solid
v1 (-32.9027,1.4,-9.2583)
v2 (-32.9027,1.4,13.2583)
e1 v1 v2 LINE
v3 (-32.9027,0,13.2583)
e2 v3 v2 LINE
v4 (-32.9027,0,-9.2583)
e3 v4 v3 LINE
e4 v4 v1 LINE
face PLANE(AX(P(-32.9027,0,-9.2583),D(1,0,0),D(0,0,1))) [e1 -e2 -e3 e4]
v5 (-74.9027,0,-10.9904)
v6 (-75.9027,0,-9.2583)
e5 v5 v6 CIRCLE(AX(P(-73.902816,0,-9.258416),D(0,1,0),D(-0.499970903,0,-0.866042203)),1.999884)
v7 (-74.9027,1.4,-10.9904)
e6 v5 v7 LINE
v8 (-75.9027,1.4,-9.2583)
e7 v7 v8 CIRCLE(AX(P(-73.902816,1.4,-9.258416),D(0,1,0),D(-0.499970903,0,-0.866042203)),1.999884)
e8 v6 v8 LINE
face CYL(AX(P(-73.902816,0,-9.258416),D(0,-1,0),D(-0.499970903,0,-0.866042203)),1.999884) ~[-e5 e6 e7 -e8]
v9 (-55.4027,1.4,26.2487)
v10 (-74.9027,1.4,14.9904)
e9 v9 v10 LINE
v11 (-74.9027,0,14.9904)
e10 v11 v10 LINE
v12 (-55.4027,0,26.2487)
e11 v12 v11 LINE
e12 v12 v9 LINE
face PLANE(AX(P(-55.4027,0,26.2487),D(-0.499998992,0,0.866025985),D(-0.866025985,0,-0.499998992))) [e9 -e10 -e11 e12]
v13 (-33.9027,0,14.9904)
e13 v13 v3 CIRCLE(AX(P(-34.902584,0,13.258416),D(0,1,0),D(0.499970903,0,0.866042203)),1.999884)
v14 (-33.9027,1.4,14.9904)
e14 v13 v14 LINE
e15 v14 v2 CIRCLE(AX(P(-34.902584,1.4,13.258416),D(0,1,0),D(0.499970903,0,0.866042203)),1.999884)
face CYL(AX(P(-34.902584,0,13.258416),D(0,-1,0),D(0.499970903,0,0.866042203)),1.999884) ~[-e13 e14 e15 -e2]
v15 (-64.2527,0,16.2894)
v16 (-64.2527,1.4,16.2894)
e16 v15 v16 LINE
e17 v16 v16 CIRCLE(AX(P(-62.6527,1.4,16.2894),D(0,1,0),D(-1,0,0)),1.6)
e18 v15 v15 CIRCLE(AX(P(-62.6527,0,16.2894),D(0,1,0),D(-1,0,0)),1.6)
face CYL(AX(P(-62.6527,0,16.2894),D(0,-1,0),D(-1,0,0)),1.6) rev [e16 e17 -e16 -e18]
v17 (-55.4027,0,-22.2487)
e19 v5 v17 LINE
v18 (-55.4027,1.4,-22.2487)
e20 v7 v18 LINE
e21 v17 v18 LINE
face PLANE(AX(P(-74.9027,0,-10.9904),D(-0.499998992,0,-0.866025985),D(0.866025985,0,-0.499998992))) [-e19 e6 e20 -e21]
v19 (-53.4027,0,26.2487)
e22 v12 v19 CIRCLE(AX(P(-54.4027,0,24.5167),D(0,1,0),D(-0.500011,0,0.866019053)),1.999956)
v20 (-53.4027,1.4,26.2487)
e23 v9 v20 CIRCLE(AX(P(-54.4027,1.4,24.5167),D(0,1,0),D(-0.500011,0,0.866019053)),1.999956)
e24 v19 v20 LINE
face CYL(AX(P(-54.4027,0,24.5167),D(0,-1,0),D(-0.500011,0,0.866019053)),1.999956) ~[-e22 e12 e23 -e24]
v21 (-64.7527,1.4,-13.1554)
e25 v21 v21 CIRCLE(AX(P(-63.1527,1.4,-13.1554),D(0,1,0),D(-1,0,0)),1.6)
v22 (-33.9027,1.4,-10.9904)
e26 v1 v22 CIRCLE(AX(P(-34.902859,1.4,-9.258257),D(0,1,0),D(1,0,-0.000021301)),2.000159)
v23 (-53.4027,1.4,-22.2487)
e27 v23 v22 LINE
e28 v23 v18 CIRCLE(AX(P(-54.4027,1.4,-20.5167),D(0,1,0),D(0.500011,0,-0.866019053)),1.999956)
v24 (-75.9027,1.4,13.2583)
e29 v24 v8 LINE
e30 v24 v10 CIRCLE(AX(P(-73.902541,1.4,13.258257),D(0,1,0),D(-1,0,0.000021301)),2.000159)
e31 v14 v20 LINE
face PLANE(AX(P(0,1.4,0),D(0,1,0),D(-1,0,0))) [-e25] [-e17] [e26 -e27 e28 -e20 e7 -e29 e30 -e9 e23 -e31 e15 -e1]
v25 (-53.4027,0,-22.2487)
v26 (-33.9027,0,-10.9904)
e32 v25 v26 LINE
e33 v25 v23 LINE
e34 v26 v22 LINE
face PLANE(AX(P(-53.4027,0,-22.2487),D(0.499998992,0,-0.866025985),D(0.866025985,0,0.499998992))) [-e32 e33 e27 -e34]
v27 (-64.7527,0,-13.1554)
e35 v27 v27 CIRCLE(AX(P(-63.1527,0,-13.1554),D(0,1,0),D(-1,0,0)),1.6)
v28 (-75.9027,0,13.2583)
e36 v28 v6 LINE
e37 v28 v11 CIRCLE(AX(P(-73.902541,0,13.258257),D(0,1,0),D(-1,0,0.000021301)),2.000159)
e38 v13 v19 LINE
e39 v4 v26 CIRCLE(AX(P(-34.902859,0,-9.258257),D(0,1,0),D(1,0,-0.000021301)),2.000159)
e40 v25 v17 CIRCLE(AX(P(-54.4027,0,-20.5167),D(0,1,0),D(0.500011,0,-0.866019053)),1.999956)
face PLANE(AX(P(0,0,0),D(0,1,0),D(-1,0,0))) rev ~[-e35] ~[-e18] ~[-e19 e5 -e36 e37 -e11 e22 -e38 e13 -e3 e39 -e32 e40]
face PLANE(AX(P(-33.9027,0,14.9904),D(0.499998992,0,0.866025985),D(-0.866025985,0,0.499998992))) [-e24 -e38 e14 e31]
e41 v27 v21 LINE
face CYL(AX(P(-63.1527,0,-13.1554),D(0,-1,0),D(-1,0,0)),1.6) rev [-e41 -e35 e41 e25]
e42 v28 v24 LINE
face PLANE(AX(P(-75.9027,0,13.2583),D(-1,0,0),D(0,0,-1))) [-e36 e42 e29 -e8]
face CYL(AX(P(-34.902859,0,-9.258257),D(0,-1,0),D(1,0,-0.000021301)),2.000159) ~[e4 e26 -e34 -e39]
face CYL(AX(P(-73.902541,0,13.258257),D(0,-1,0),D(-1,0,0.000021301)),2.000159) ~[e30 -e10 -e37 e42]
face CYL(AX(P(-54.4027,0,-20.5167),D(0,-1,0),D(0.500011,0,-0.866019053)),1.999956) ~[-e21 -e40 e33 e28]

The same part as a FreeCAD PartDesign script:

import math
import FreeCAD as App
import Part
import Sketcher
from FreeCAD import Vector
Q = App.Units.Quantity

doc = App.newDocument("Part")
params = doc.addObject("Spreadsheet::Sheet", "Params")
for row, (alias, value) in enumerate([
    ("sketch1_diameter", "3.2 mm"),
    ("sketch1_radius", "2 mm"),
    ("pad1_length", "1.4 mm"),
], start=1):
    params.set(f"A{row}", alias)
    params.set(f"B{row}", "=" + value)
    params.setAlias(f"B{row}", alias)

body = doc.addObject("PartDesign::Body", "Body")

sketch1 = body.newObject("Sketcher::SketchObject", "Sketch")
sketch1.AttachmentSupport = (doc.getObject("XZ_Plane"), [""])
sketch1.MapMode = "FlatFace"
sketch1.addGeometry([
    Part.LineSegment(Vector(-74.9, 15, 0), Vector(-55.4, 26.2, 0)),
    Part.ArcOfCircle(Part.Circle(Vector(-54.4, 24.5, 0), Vector(0, 0, 1), 2), math.radians(60), math.radians(120)),
    Part.LineSegment(Vector(-53.4, 26.2, 0), Vector(-33.9, 15, 0)),
    Part.ArcOfCircle(Part.Circle(Vector(-34.9, 13.3, 0), Vector(0, 0, 1), 2), math.radians(0), math.radians(60)),
    Part.LineSegment(Vector(-32.9, 13.3, 0), Vector(-32.9, -9.3, 0)),
    Part.ArcOfCircle(Part.Circle(Vector(-34.9, -9.3, 0), Vector(0, 0, 1), 2), math.radians(-60), math.radians(0)),
    Part.LineSegment(Vector(-33.9, -11, 0), Vector(-53.4, -22.2, 0)),
    Part.ArcOfCircle(Part.Circle(Vector(-54.4, -20.5, 0), Vector(0, 0, 1), 2), math.radians(-120), math.radians(-60)),
    Part.LineSegment(Vector(-55.4, -22.2, 0), Vector(-74.9, -11, 0)),
    Part.ArcOfCircle(Part.Circle(Vector(-73.9, -9.3, 0), Vector(0, 0, 1), 2), math.radians(180), math.radians(240)),
    Part.LineSegment(Vector(-75.9, -9.3, 0), Vector(-75.9, 13.3, 0)),
    Part.ArcOfCircle(Part.Circle(Vector(-73.9, 13.3, 0), Vector(0, 0, 1), 2), math.radians(120), math.radians(180)),
    Part.Circle(Vector(-63.2, -13.2, 0), Vector(0, 0, 1), 1.6),
    Part.Circle(Vector(-62.7, 16.3, 0), Vector(0, 0, 1), 1.6),
], False)
sketch1.addConstraint([
    Sketcher.Constraint("Tangent", 0, 2, 1, 2),
    Sketcher.Constraint("Tangent", 1, 1, 2, 1),
    Sketcher.Constraint("Tangent", 2, 2, 3, 2),
    Sketcher.Constraint("Tangent", 3, 1, 4, 1),
    Sketcher.Constraint("Tangent", 4, 2, 5, 2),
    Sketcher.Constraint("Tangent", 5, 1, 6, 1),
    Sketcher.Constraint("Tangent", 6, 2, 7, 2),
    Sketcher.Constraint("Tangent", 7, 1, 8, 1),
    Sketcher.Constraint("Tangent", 8, 2, 9, 2),
    Sketcher.Constraint("Tangent", 9, 1, 10, 1),
    Sketcher.Constraint("Tangent", 10, 2, 11, 2),
    Sketcher.Constraint("Tangent", 11, 1, 0, 1),
    Sketcher.Constraint("Vertical", 4),
    Sketcher.Constraint("Vertical", 10),
    Sketcher.Constraint("Equal", 1, 3),
    Sketcher.Constraint("Equal", 3, 5),
    Sketcher.Constraint("Equal", 5, 7),
    Sketcher.Constraint("Equal", 7, 9),
    Sketcher.Constraint("Equal", 9, 11),
    Sketcher.Constraint("Equal", 12, 13),
    Sketcher.Constraint("Parallel", 0, 6),
    Sketcher.Constraint("Parallel", 2, 8),
    Sketcher.Constraint("Horizontal", 5, 3, 9, 3),
    Sketcher.Constraint("Horizontal", 3, 3, 11, 3),
    Sketcher.Constraint("Horizontal", 0, 2, 1, 1),
    Sketcher.Constraint("Diameter", 12, Q("3.2 mm")),
    Sketcher.Constraint("Radius", 1, Q("2 mm")),
    Sketcher.Constraint("Angle", 0, Q("30 deg")),
    Sketcher.Constraint("DistanceX", 9, 3, 5, 3, Q("39 mm")),
    Sketcher.Constraint("DistanceX", 12, 3, 13, 3, Q("0.5 mm")),
    Sketcher.Constraint("DistanceX", 9, 3, 12, 3, Q("10.75 mm")),
    Sketcher.Constraint("DistanceY", 4, 2, 4, 1, Q("22.5166 mm")),
    Sketcher.Constraint("DistanceY", 12, 3, 9, 3, Q("3.897 mm")),
    Sketcher.Constraint("DistanceY", 11, 3, 13, 3, Q("3.031 mm")),
    Sketcher.Constraint("DistanceX", 1, 3, -1, 1, Q("54.4027 mm")),
    Sketcher.Constraint("DistanceY", -1, 1, 1, 3, Q("24.5167 mm")),
])
sketch1.setExpression("Constraints[25]", "Params.sketch1_diameter")
sketch1.setExpression("Constraints[26]", "Params.sketch1_radius")
pad1 = body.newObject("PartDesign::Pad", "Pad")
pad1.Profile = sketch1
pad1.setExpression("Length", "Params.pad1_length")
pad1.Reversed = True

doc.recompute()
